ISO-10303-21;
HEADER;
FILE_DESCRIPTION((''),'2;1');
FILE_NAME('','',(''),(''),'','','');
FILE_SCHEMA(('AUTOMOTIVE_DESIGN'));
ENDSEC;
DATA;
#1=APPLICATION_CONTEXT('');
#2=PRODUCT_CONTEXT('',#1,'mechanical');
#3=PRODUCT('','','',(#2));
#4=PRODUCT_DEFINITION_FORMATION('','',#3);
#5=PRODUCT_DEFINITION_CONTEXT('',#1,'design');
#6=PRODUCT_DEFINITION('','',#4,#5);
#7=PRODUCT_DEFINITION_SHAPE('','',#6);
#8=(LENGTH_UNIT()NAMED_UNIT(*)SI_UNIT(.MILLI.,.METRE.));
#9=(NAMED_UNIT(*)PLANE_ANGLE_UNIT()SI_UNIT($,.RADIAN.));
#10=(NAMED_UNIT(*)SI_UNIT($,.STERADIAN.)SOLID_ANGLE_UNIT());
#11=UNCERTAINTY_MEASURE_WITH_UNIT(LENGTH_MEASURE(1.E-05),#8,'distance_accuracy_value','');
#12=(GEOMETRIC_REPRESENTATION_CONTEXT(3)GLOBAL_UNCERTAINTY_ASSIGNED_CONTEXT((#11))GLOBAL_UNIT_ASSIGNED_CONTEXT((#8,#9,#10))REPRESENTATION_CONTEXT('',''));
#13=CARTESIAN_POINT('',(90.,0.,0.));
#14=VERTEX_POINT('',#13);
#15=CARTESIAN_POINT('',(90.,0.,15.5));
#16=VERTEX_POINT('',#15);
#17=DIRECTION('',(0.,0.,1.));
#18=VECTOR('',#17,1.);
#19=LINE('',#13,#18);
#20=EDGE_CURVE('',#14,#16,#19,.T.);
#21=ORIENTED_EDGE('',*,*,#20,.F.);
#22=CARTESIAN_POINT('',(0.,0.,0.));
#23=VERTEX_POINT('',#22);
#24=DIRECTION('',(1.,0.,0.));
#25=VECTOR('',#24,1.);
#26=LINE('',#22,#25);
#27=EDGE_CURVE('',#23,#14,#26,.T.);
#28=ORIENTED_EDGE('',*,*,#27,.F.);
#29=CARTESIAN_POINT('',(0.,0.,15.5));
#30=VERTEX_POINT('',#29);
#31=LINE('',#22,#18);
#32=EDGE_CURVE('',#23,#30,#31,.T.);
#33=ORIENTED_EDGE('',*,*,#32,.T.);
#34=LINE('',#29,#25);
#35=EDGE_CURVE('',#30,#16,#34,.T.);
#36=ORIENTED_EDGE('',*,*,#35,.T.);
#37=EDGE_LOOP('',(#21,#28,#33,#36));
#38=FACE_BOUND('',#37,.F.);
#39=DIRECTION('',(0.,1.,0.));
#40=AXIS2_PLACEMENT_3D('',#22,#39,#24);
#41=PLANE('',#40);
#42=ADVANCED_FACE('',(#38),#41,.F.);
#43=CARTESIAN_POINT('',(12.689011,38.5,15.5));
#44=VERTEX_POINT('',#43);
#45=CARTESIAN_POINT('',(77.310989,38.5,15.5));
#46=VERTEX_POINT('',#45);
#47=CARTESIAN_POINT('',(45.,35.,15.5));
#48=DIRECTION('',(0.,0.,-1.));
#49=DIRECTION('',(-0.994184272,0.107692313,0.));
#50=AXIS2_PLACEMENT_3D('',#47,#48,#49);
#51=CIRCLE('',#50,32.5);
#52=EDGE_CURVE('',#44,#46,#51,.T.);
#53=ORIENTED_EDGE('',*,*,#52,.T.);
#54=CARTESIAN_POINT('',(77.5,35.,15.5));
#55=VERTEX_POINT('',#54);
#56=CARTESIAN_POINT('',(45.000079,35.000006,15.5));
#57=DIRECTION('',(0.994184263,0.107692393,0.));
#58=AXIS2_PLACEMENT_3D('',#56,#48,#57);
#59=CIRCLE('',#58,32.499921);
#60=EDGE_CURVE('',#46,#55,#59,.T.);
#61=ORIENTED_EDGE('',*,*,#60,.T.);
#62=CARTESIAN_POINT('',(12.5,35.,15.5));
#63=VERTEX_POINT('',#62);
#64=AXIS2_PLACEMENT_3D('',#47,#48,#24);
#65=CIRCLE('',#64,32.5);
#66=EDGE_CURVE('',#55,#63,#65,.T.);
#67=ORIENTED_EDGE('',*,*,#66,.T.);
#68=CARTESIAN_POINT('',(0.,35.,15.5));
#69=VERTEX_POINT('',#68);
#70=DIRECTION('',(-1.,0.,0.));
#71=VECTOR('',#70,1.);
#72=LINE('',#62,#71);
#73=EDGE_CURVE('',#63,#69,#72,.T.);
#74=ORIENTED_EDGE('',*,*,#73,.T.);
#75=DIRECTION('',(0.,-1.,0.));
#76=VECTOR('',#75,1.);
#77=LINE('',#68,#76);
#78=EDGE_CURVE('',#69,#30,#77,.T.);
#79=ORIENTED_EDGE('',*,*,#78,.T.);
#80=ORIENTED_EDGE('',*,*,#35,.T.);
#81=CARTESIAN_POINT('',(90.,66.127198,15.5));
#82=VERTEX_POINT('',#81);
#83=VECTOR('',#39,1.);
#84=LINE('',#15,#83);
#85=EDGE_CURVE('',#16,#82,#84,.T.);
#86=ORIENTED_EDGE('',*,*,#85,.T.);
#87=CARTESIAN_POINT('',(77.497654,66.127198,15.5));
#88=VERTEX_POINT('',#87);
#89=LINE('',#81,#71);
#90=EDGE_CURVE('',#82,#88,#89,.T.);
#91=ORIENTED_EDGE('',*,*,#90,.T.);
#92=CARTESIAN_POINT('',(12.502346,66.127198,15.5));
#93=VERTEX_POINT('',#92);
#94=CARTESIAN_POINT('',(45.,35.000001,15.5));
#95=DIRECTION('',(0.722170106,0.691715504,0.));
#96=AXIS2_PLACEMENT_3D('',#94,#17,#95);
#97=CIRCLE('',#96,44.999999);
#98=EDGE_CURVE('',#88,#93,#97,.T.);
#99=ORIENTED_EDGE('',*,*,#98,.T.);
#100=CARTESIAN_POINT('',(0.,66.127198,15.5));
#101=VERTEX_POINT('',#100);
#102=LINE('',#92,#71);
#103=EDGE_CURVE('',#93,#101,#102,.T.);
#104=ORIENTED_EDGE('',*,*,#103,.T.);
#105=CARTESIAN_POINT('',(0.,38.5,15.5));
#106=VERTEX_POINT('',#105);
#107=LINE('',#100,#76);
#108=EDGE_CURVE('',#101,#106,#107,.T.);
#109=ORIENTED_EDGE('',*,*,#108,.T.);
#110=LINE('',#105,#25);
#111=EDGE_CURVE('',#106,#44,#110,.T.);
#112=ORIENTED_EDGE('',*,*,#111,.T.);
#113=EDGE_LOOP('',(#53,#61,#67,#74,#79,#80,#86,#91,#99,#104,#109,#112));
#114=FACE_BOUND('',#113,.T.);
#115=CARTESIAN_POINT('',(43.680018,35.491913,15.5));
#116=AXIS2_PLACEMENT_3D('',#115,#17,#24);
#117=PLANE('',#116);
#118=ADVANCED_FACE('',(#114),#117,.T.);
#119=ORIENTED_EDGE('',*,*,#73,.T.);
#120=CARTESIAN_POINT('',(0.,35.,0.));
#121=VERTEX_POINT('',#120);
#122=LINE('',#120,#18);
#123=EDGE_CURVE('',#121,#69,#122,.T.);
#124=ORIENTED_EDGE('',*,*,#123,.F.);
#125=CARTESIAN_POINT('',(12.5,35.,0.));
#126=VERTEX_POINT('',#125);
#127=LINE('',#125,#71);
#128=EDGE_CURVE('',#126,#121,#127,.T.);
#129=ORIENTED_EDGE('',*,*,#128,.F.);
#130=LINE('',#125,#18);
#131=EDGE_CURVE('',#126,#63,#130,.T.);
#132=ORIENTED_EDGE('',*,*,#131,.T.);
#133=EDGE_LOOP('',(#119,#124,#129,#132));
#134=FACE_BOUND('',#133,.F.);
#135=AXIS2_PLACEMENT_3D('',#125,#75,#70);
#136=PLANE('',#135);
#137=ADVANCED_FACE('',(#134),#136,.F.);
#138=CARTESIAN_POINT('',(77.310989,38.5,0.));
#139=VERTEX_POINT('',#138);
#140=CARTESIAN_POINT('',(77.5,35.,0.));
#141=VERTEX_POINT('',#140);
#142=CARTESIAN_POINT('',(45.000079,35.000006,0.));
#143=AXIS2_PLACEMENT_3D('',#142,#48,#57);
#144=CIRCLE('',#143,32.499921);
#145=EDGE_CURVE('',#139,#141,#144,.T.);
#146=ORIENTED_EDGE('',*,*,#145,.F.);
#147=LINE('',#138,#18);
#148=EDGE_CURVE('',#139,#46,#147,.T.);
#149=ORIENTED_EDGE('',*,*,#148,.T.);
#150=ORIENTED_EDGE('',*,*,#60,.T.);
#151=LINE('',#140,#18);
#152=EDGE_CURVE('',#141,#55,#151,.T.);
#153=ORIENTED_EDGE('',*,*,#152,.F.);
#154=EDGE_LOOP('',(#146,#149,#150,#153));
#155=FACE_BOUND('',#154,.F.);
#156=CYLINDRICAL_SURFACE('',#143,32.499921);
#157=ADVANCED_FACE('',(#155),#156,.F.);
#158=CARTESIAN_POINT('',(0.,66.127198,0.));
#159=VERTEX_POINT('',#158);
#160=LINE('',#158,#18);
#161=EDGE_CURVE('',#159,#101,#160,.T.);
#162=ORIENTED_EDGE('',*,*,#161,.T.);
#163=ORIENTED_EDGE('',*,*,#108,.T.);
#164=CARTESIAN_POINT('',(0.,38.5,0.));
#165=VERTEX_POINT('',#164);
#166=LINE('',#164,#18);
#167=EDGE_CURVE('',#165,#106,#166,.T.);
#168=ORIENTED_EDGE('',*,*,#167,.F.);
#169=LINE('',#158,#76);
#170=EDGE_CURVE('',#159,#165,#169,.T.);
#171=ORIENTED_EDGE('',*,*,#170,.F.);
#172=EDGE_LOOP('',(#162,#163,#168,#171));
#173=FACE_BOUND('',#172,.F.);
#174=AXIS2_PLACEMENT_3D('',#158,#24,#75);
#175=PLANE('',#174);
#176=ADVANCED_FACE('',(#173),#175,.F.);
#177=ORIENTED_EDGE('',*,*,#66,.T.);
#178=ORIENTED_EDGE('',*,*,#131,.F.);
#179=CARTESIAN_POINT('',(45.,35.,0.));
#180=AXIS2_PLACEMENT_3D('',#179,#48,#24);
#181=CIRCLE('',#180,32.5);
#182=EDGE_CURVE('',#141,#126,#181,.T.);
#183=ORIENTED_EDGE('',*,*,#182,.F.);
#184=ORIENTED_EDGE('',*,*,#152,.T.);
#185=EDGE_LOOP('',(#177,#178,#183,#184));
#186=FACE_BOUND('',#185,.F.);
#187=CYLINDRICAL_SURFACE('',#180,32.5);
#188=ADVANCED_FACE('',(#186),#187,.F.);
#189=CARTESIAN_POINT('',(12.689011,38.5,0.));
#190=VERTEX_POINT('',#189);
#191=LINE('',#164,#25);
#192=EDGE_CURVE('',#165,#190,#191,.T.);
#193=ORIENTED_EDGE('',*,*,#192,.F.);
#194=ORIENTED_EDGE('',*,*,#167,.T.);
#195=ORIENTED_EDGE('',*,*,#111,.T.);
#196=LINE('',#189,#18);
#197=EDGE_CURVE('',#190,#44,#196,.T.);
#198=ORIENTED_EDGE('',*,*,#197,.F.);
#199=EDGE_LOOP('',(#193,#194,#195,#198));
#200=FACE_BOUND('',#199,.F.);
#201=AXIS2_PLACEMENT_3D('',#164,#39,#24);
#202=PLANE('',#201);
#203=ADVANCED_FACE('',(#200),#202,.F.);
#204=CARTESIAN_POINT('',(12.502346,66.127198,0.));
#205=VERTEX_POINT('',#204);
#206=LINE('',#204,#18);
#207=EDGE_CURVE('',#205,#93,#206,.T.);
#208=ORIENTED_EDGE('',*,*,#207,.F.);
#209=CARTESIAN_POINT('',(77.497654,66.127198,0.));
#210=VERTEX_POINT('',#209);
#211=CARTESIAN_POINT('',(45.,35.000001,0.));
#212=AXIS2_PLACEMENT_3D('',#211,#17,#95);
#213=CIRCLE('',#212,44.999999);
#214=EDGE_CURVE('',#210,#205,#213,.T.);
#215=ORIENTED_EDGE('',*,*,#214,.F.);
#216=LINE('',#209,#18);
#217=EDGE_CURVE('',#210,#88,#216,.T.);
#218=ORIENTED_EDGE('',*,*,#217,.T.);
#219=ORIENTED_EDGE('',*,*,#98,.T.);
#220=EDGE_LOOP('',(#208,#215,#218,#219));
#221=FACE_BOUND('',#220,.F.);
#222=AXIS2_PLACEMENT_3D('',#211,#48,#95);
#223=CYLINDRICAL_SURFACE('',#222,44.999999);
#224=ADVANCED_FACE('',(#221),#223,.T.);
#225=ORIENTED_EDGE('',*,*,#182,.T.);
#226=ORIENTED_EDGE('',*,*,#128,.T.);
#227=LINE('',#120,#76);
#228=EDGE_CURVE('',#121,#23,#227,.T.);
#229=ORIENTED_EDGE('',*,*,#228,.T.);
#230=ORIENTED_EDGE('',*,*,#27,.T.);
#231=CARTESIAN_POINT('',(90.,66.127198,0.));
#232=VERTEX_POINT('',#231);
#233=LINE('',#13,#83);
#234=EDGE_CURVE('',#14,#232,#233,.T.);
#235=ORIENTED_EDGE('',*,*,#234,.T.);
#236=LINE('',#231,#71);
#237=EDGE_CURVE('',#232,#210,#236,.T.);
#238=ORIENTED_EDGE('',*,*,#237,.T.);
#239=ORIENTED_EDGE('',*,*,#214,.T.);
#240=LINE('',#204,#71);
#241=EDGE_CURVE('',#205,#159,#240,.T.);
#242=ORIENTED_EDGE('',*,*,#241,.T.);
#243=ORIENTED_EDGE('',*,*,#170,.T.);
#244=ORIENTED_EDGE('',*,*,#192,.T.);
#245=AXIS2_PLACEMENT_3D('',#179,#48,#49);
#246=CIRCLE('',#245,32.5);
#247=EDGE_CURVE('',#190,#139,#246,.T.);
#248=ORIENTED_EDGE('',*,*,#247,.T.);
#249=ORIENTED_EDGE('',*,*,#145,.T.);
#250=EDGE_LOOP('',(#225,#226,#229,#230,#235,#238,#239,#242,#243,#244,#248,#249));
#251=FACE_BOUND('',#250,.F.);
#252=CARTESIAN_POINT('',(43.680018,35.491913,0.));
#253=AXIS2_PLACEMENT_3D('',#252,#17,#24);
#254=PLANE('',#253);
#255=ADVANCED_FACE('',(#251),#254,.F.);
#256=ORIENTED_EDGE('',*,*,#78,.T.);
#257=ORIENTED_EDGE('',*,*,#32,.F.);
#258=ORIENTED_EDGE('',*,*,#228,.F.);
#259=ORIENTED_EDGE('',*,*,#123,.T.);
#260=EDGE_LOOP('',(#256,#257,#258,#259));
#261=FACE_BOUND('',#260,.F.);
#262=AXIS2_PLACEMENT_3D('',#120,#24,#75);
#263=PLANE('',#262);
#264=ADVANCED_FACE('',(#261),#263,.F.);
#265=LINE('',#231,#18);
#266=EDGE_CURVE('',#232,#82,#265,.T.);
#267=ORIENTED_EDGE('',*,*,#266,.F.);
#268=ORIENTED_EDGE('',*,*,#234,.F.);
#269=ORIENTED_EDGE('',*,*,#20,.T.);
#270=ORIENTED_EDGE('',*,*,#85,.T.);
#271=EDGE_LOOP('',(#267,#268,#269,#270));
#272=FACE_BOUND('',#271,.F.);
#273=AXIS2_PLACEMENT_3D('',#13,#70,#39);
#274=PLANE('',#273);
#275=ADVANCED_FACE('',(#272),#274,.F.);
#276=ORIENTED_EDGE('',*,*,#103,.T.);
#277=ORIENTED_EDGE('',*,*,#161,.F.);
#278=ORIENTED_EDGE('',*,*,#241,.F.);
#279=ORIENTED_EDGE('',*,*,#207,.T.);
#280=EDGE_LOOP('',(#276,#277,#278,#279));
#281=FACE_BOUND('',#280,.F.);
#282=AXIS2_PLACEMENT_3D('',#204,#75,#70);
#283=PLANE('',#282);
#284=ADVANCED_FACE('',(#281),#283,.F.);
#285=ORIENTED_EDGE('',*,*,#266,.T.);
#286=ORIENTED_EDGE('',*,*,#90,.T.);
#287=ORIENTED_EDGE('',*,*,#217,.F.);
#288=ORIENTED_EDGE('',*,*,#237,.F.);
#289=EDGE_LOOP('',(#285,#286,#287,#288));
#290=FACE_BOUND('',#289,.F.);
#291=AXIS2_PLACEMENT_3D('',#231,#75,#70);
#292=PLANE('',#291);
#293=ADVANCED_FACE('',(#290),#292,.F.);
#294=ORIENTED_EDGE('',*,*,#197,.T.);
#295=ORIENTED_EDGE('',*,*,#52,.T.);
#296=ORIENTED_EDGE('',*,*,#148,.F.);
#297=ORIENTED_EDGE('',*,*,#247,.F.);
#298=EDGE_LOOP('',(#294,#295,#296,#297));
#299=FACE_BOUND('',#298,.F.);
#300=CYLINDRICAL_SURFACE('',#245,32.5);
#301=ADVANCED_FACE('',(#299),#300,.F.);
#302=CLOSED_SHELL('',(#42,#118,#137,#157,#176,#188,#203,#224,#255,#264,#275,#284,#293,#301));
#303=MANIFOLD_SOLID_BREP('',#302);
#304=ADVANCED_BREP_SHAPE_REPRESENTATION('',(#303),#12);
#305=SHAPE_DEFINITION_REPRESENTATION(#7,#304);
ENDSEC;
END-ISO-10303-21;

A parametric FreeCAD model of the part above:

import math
import FreeCAD as App
import Part
import Sketcher

doc = App.newDocument("Part")
params = doc.addObject("Spreadsheet::Sheet", "Params")
for row, (alias, value) in enumerate([
    ("sketch1_radius", "44.999999 mm"),
    ("sketch1_radius2", "32.5 mm"),
    ("sketch1_radius3", "32.5 mm"),
    ("sketch1_width", "90 mm"),
    ("sketch1_height", "35 mm"),
    ("pad1_length", "15.5 mm"),
], start=1):
    params.set(f"A{row}", alias)
    params.set(f"B{row}", "=" + value)
    params.setAlias(f"B{row}", alias)

body = doc.addObject("PartDesign::Body", "Body")

sketch1 = body.newObject("Sketcher::SketchObject", "Sketch")
sketch1.AttachmentSupport = (doc.getObject("XY_Plane"), [""])
sketch1.MapMode = "FlatFace"
sketch1.addGeometry(Part.LineSegment(App.Vector(0, 35, 0), App.Vector(0, 0, 0)), False)
sketch1.addGeometry(Part.LineSegment(App.Vector(0, 0, 0), App.Vector(90, 0, 0)), False)
sketch1.addGeometry(Part.LineSegment(App.Vector(90, 0, 0), App.Vector(90, 66.127198, 0)), False)
sketch1.addGeometry(Part.LineSegment(App.Vector(90, 66.127198, 0), App.Vector(77.497654, 66.127198, 0)), False)
sketch1.addGeometry(Part.ArcOfCircle(Part.Circle(App.Vector(45, 35.000001, 0), App.Vector(0, 0, 1), 44.999999), math.radians(43.76606), math.radians(136.23394)), False)
sketch1.addGeometry(Part.LineSegment(App.Vector(12.502346, 66.127198, 0), App.Vector(0, 66.127198, 0)), False)
sketch1.addGeometry(Part.LineSegment(App.Vector(0, 66.127198, 0), App.Vector(0, 38.5, 0)), False)
sketch1.addGeometry(Part.LineSegment(App.Vector(0, 38.5, 0), App.Vector(12.689011, 38.5, 0)), False)
sketch1.addGeometry(Part.ArcOfCircle(Part.Circle(App.Vector(45, 35, 0), App.Vector(0, 0, 1), 32.5), math.radians(6.182305), math.radians(173.817695)), False)
sketch1.addGeometry(Part.ArcOfCircle(Part.Circle(App.Vector(45.000079, 35.000006, 0), App.Vector(0, 0, 1), 32.499921), math.radians(-0.00001), math.radians(6.182309)), False)
sketch1.addGeometry(Part.ArcOfCircle(Part.Circle(App.Vector(45, 35, 0), App.Vector(0, 0, 1), 32.5), math.radians(180), math.radians(360)), False)
sketch1.addGeometry(Part.LineSegment(App.Vector(12.5, 35, 0), App.Vector(0, 35, 0)), False)
sketch1.addConstraint(Sketcher.Constraint("Coincident", 0, 2, 1, 1))
sketch1.addConstraint(Sketcher.Constraint("Coincident", 1, 2, 2, 1))
sketch1.addConstraint(Sketcher.Constraint("Coincident", 2, 2, 3, 1))
sketch1.addConstraint(Sketcher.Constraint("Coincident", 3, 2, 4, 1))
sketch1.addConstraint(Sketcher.Constraint("Coincident", 4, 2, 5, 1))
sketch1.addConstraint(Sketcher.Constraint("Coincident", 5, 2, 6, 1))
sketch1.addConstraint(Sketcher.Constraint("Coincident", 6, 2, 7, 1))
sketch1.addConstraint(Sketcher.Constraint("Coincident", 7, 2, 8, 2))
sketch1.addConstraint(Sketcher.Constraint("Coincident", 8, 1, 9, 2))
sketch1.addConstraint(Sketcher.Constraint("Coincident", 9, 1, 10, 2))
sketch1.addConstraint(Sketcher.Constraint("Coincident", 10, 1, 11, 1))
sketch1.addConstraint(Sketcher.Constraint("Coincident", 11, 2, 0, 1))
sketch1.addConstraint(Sketcher.Constraint("Vertical", 0))
sketch1.addConstraint(Sketcher.Constraint("Horizontal", 1))
sketch1.addConstraint(Sketcher.Constraint("Vertical", 2))
sketch1.addConstraint(Sketcher.Constraint("Horizontal", 3))
sketch1.addConstraint(Sketcher.Constraint("Horizontal", 5))
sketch1.addConstraint(Sketcher.Constraint("Vertical", 6))
sketch1.addConstraint(Sketcher.Constraint("Horizontal", 7))
sketch1.addConstraint(Sketcher.Constraint("Horizontal", 11))
sketch1.addConstraint(Sketcher.Constraint("Coincident", 0, 2, -1, 1))
sketch1.addConstraint(Sketcher.Constraint("Coincident", 8, 3, 4, 3))
sketch1.addConstraint(Sketcher.Constraint("Coincident", 10, 3, 4, 3))
sketch1.addConstraint(Sketcher.Constraint("PointOnObject", 5, 2, -2))
sketch1.addConstraint(Sketcher.Constraint("Radius", 4, 44.999999))
sketch1.addConstraint(Sketcher.Constraint("Radius", 8, 32.5))
sketch1.addConstraint(Sketcher.Constraint("Radius", 10, 32.5))
sketch1.addConstraint(Sketcher.Constraint("DistanceX", 1, 1, 1, 2, 90.0))
sketch1.addConstraint(Sketcher.Constraint("DistanceY", 0, 2, 0, 1, 35.0))
sketch1.addConstraint(Sketcher.Constraint("DistanceX", 11, 2, 11, 1, 12.5))
sketch1.addConstraint(Sketcher.Constraint("DistanceY", -1, 1, 4, 3, 35.000001))
sketch1.addConstraint(Sketcher.Constraint("DistanceY", -1, 1, 9, 1, 35.0))
sketch1.addConstraint(Sketcher.Constraint("DistanceY", -1, 1, 6, 2, 38.5))
sketch1.addConstraint(Sketcher.Constraint("DistanceY", -1, 1, 8, 1, 38.5))
sketch1.addConstraint(Sketcher.Constraint("Radius", 9, 32.499921))
sketch1.addConstraint(Sketcher.Constraint("DistanceY", 2, 1, 2, 2, 66.127198))
sketch1.addConstraint(Sketcher.Constraint("DistanceY", 6, 2, 6, 1, 27.627198))
sketch1.setExpression("Constraints[24]", "Params.sketch1_radius")
sketch1.setExpression("Constraints[25]", "Params.sketch1_radius2")
sketch1.setExpression("Constraints[26]", "Params.sketch1_radius3")
sketch1.setExpression("Constraints[27]", "Params.sketch1_width")
sketch1.setExpression("Constraints[28]", "Params.sketch1_height")
pad1 = body.newObject("PartDesign::Pad", "Pad")
pad1.Profile = sketch1
pad1.setExpression("Length", "Params.pad1_length")

doc.recompute()
